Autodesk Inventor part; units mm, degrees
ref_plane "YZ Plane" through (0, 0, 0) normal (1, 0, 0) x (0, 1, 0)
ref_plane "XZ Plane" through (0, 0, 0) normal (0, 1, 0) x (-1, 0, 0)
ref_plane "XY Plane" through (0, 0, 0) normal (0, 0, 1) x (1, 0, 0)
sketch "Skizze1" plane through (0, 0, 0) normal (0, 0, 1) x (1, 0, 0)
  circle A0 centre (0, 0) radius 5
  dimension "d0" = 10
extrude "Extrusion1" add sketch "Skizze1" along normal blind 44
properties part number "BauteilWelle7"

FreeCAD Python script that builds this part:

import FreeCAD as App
import Part
import Sketcher
from FreeCAD import Vector
Q = App.Units.Quantity

doc = App.newDocument("Part")
body = doc.addObject("PartDesign::Body", "Body")

sketch1 = body.newObject("Sketcher::SketchObject", "Sketch")
sketch1.AttachmentSupport = (doc.getObject("XY_Plane"), [""])
sketch1.MapMode = "FlatFace"
sketch1.addGeometry(Part.Circle(Vector(0, 0, 0), Vector(0, 0, 1), 5), False)
sketch1.addConstraint(Sketcher.Constraint("Coincident", 0, 3, -1, 1))
sketch1.addConstraint(Sketcher.Constraint("Diameter", 0, Q("10 mm")))
pad1 = body.newObject("PartDesign::Pad", "Pad")
pad1.Profile = sketch1
pad1.Length = 44

doc.recompute()
